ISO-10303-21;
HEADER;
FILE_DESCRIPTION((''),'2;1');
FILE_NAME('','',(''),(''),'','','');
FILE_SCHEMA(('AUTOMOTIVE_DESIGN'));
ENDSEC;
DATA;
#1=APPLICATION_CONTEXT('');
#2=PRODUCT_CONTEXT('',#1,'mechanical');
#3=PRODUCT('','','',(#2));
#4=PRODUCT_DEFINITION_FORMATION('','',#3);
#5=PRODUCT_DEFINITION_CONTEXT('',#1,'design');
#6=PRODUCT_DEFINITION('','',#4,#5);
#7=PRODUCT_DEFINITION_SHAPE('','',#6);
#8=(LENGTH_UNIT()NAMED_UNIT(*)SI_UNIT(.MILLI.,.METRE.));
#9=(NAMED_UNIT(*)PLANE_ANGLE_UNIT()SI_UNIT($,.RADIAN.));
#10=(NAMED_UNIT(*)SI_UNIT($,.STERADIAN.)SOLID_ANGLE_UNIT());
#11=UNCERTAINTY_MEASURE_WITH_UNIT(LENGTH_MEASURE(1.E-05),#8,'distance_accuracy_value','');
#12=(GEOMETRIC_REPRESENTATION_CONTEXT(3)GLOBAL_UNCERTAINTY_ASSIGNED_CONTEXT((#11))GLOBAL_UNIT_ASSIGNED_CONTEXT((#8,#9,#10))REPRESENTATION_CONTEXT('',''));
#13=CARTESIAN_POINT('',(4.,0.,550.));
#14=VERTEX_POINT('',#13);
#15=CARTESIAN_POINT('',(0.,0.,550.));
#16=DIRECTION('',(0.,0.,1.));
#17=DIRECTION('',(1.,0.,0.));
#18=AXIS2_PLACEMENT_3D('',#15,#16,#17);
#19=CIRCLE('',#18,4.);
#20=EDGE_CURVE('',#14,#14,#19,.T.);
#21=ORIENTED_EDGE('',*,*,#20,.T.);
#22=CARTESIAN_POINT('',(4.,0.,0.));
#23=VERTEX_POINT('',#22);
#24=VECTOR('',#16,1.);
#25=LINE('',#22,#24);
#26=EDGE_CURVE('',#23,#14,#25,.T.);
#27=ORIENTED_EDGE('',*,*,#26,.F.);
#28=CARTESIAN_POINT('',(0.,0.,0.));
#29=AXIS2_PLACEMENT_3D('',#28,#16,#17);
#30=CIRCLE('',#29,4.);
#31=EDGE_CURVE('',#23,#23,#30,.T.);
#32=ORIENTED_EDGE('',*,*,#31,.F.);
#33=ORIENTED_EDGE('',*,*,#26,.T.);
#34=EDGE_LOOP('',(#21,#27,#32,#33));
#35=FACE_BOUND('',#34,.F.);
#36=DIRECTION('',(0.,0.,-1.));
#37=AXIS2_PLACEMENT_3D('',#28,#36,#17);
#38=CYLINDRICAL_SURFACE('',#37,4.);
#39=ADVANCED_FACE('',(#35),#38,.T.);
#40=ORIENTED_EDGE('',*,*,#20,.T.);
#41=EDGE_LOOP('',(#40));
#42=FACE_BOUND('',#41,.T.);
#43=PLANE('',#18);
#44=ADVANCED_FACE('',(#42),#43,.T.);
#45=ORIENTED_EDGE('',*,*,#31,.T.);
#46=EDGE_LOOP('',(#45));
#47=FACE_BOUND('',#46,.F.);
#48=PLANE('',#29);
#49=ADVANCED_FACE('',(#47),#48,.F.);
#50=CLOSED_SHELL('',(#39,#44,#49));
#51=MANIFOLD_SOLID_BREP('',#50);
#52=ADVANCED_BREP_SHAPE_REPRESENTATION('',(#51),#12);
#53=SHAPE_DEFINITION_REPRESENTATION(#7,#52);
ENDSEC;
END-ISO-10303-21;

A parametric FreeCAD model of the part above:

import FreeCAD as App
import Part
import Sketcher
from FreeCAD import Vector
Q = App.Units.Quantity

doc = App.newDocument("Part")
params = doc.addObject("Spreadsheet::Sheet", "Params")
for row, (alias, value) in enumerate([
    ("sketch1_diameter", "8 mm"),
    ("pad1_length", "550 mm"),
], start=1):
    params.set(f"A{row}", alias)
    params.set(f"B{row}", "=" + value)
    params.setAlias(f"B{row}", alias)

body = doc.addObject("PartDesign::Body", "Body")

sketch1 = body.newObject("Sketcher::SketchObject", "Sketch")
sketch1.AttachmentSupport = (doc.getObject("XY_Plane"), [""])
sketch1.MapMode = "FlatFace"
sketch1.addGeometry(Part.Circle(Vector(0, 0, 0), Vector(0, 0, 1), 4), False)
sketch1.addConstraint(Sketcher.Constraint("Coincident", 0, 3, -1, 1))
sketch1.addConstraint(Sketcher.Constraint("Diameter", 0, Q("8 mm")))
sketch1.setExpression("Constraints[1]", "Params.sketch1_diameter")
pad1 = body.newObject("PartDesign::Pad", "Pad")
pad1.Profile = sketch1
pad1.setExpression("Length", "Params.pad1_length")

doc.recompute()
